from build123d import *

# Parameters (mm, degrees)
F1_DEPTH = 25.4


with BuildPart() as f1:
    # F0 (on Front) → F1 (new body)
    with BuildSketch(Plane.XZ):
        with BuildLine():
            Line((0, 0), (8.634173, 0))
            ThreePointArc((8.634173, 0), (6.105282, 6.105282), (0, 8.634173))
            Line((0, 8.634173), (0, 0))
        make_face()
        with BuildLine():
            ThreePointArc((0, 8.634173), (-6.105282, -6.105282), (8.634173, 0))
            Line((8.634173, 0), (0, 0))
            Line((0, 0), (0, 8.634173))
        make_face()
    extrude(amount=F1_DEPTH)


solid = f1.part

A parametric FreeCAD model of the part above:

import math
import FreeCAD as App
import Part
import Sketcher
from FreeCAD import Vector
Q = App.Units.Quantity

doc = App.newDocument("Part")
body = doc.addObject("PartDesign::Body", "Body")

# Sketch on XZ plane
sketch1 = doc.addObject("Sketcher::SketchObject", "Sketch")
body.addObject(sketch1)
sketch1.AttachmentSupport = (doc.XZ_Plane, [""])
sketch1.MapMode = "FlatFace"
sketch1.addGeometry([
    Part.ArcOfCircle(Part.Circle(Vector(-0.000001, -0.000001, 0), Vector(0, 0, 1), 8.634174), math.radians(0.000006), math.radians(89.999994)),
    Part.ArcOfCircle(Part.Circle(Vector(0, 0, 0), Vector(0, 0, 1), 8.634173), math.radians(90.000001), math.radians(359.999999)),
], False)
sketch1.addConstraint([
    Sketcher.Constraint("Tangent", 0, 1, 1, 2),
    Sketcher.Constraint("Coincident", 1, 1, 0, 2),
    Sketcher.Constraint("Coincident", 0, 3, -1, 1),
    Sketcher.Constraint("PointOnObject", 0, 1, -1),
    Sketcher.Constraint("PointOnObject", 1, 1, -2),
    Sketcher.Constraint("Radius", 0, Q("8.634174 mm")),
])
pad1 = doc.addObject("PartDesign::Pad", "Pad")
body.addObject(pad1)
pad1.Profile = sketch1
pad1.Length = Q("1 in")

doc.recompute()
